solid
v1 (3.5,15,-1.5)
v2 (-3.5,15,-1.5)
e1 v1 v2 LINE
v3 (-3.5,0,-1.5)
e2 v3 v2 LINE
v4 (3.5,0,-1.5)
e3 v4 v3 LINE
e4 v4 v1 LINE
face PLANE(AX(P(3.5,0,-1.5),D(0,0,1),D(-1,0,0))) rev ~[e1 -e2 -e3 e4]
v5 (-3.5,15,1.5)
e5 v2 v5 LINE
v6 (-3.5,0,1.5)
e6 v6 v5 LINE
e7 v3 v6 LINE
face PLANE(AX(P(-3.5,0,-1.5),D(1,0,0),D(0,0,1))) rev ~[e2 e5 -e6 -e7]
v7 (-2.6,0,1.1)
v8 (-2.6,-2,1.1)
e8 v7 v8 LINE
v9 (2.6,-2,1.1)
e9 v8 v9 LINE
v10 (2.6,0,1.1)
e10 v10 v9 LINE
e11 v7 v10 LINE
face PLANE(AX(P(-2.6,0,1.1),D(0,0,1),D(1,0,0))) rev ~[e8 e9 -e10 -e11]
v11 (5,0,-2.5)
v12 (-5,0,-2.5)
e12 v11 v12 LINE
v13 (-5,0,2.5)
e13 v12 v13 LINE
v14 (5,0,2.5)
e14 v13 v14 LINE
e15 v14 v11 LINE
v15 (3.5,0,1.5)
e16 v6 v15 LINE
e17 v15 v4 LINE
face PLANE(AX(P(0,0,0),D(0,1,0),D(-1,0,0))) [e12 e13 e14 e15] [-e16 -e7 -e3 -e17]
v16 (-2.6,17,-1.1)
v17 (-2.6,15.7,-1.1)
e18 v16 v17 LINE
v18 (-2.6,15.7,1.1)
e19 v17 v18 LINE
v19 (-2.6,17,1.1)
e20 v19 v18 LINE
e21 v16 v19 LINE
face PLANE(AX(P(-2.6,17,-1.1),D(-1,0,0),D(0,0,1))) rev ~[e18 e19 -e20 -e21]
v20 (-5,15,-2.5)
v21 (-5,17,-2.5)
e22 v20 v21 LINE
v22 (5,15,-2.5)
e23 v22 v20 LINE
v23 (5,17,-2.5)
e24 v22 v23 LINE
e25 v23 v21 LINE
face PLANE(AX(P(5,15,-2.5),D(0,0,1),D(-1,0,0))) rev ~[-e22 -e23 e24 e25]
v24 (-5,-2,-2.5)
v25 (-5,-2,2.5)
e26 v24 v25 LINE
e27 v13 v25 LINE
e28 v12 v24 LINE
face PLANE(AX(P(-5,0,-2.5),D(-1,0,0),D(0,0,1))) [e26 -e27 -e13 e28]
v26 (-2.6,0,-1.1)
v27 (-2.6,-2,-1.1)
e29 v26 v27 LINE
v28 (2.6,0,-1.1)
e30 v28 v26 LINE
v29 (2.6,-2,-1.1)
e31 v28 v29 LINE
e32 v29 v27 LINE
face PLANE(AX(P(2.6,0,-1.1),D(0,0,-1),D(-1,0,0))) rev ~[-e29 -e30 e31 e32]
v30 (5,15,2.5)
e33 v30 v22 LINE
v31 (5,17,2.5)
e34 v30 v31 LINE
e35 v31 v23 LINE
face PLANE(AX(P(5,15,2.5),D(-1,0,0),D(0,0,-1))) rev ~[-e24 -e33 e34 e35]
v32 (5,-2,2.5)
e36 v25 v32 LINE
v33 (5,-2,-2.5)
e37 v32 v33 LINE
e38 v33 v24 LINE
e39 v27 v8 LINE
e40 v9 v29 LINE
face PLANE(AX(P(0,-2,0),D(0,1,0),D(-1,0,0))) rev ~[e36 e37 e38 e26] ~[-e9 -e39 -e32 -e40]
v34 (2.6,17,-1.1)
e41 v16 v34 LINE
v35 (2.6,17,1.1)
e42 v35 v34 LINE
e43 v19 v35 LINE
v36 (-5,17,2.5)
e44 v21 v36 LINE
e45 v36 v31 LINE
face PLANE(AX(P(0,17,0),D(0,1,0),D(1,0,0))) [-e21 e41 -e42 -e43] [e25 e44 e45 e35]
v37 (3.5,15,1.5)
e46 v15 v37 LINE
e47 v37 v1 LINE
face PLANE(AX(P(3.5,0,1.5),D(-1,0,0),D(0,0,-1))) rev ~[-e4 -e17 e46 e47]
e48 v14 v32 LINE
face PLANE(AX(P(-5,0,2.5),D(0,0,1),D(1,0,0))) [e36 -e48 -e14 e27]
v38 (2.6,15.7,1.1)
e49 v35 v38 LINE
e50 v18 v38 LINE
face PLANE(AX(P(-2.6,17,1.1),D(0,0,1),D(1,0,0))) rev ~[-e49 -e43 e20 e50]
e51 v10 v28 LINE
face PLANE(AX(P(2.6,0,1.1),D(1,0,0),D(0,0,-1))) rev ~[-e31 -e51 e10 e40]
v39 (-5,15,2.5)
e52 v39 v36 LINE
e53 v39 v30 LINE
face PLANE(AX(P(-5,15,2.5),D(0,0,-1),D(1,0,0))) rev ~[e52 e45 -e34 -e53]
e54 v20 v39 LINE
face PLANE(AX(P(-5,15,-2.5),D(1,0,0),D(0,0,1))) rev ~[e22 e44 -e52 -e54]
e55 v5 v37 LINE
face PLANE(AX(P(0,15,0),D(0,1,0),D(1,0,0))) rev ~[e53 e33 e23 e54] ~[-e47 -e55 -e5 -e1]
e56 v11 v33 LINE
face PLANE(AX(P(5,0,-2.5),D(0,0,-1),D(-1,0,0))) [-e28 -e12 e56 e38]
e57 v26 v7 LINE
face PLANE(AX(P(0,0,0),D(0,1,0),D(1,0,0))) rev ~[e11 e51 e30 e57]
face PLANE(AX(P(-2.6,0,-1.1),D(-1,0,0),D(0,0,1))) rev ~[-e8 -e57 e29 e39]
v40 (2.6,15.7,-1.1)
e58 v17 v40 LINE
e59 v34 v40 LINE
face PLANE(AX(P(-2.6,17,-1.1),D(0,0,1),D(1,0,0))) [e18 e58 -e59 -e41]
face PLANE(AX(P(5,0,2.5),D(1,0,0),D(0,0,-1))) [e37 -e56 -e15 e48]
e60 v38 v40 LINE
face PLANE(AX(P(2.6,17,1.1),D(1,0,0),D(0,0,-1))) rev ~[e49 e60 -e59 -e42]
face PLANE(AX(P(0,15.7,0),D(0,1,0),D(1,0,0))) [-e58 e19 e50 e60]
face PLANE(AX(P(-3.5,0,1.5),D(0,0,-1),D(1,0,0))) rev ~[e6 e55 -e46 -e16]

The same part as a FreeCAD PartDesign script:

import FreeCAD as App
import Part
import Sketcher
from FreeCAD import Vector

doc = App.newDocument("Part")
body = doc.addObject("PartDesign::Body", "Body")

sketch1 = body.newObject("Sketcher::SketchObject", "Sketch")
sketch1.AttachmentSupport = (doc.getObject("XZ_Plane"), [""])
sketch1.MapMode = "FlatFace"
sketch1.addGeometry(Part.LineSegment(Vector(-5, -2.5, 0), Vector(-5, 2.5, 0)), False)
sketch1.addGeometry(Part.LineSegment(Vector(-5, 2.5, 0), Vector(5, 2.5, 0)), False)
sketch1.addGeometry(Part.LineSegment(Vector(5, 2.5, 0), Vector(5, -2.5, 0)), False)
sketch1.addGeometry(Part.LineSegment(Vector(5, -2.5, 0), Vector(-5, -2.5, 0)), False)
sketch1.addGeometry(Part.LineSegment(Vector(2.6, 1.1, 0), Vector(-2.6, 1.1, 0)), False)
sketch1.addGeometry(Part.LineSegment(Vector(-2.6, 1.1, 0), Vector(-2.6, -1.1, 0)), False)
sketch1.addGeometry(Part.LineSegment(Vector(-2.6, -1.1, 0), Vector(2.6, -1.1, 0)), False)
sketch1.addGeometry(Part.LineSegment(Vector(2.6, -1.1, 0), Vector(2.6, 1.1, 0)), False)
sketch1.addConstraint(Sketcher.Constraint("Coincident", 0, 2, 1, 1))
sketch1.addConstraint(Sketcher.Constraint("Coincident", 1, 2, 2, 1))
sketch1.addConstraint(Sketcher.Constraint("Coincident", 2, 2, 3, 1))
sketch1.addConstraint(Sketcher.Constraint("Coincident", 3, 2, 0, 1))
sketch1.addConstraint(Sketcher.Constraint("Coincident", 4, 2, 5, 1))
sketch1.addConstraint(Sketcher.Constraint("Coincident", 5, 2, 6, 1))
sketch1.addConstraint(Sketcher.Constraint("Coincident", 6, 2, 7, 1))
sketch1.addConstraint(Sketcher.Constraint("Coincident", 7, 2, 4, 1))
sketch1.addConstraint(Sketcher.Constraint("Vertical", 0))
sketch1.addConstraint(Sketcher.Constraint("Horizontal", 1))
sketch1.addConstraint(Sketcher.Constraint("Vertical", 2))
sketch1.addConstraint(Sketcher.Constraint("Horizontal", 3))
sketch1.addConstraint(Sketcher.Constraint("Horizontal", 4))
sketch1.addConstraint(Sketcher.Constraint("Vertical", 5))
sketch1.addConstraint(Sketcher.Constraint("Horizontal", 6))
sketch1.addConstraint(Sketcher.Constraint("Vertical", 7))
sketch1.addConstraint(Sketcher.Constraint("Symmetric", 0, 2, 2, 2, -1, 1))
sketch1.addConstraint(Sketcher.Constraint("Symmetric", 4, 2, 6, 2, -1, 1))
sketch1.addConstraint(Sketcher.Constraint("DistanceX", 1, 1, 1, 2, 10.0))
sketch1.addConstraint(Sketcher.Constraint("DistanceY", 0, 1, 0, 2, 5.0))
sketch1.addConstraint(Sketcher.Constraint("DistanceX", 4, 2, 4, 1, 5.2))
sketch1.addConstraint(Sketcher.Constraint("DistanceY", 5, 2, 5, 1, 2.2))
pad1 = body.newObject("PartDesign::Pad", "Pad")
pad1.Profile = sketch1
pad1.Length = 2

sketch2 = body.newObject("Sketcher::SketchObject", "Sketch001")
sketch2.AttachmentSupport = (doc.getObject("XZ_Plane"), [""])
sketch2.MapMode = "FlatFace"
sketch2.addGeometry(Part.LineSegment(Vector(-3.5, -1.5, 0), Vector(-3.5, 1.5, 0)), False)
sketch2.addGeometry(Part.LineSegment(Vector(-3.5, 1.5, 0), Vector(3.5, 1.5, 0)), False)
sketch2.addGeometry(Part.LineSegment(Vector(3.5, 1.5, 0), Vector(3.5, -1.5, 0)), False)
sketch2.addGeometry(Part.LineSegment(Vector(3.5, -1.5, 0), Vector(-3.5, -1.5, 0)), False)
sketch2.addConstraint(Sketcher.Constraint("Coincident", 0, 2, 1, 1))
sketch2.addConstraint(Sketcher.Constraint("Coincident", 1, 2, 2, 1))
sketch2.addConstraint(Sketcher.Constraint("Coincident", 2, 2, 3, 1))
sketch2.addConstraint(Sketcher.Constraint("Coincident", 3, 2, 0, 1))
sketch2.addConstraint(Sketcher.Constraint("Vertical", 0))
sketch2.addConstraint(Sketcher.Constraint("Horizontal", 1))
sketch2.addConstraint(Sketcher.Constraint("Vertical", 2))
sketch2.addConstraint(Sketcher.Constraint("Horizontal", 3))
sketch2.addConstraint(Sketcher.Constraint("Symmetric", 0, 2, 2, 2, -1, 1))
sketch2.addConstraint(Sketcher.Constraint("DistanceX", 1, 1, 1, 2, 7.0))
sketch2.addConstraint(Sketcher.Constraint("DistanceY", 0, 1, 0, 2, 3.0))
pad2 = body.newObject("PartDesign::Pad", "Pad001")
pad2.Profile = sketch2
pad2.Length = 15
pad2.Reversed = True

sketch3 = body.newObject("Sketcher::SketchObject", "Sketch002")
sketch3.AttachmentSupport = (doc.getObject("XZ_Plane"), [""])
sketch3.MapMode = "FlatFace"
sketch3.AttachmentOffset = App.Placement(Vector(0, 0, -15), App.Rotation())
sketch3.addGeometry(Part.LineSegment(Vector(-5, 2, 0), Vector(5, 2, 0)), False)
sketch3.addGeometry(Part.LineSegment(Vector(5, 2, 0), Vector(5, -2, 0)), False)
sketch3.addGeometry(Part.LineSegment(Vector(5, -2, 0), Vector(-5, -2, 0)), False)
sketch3.addGeometry(Part.LineSegment(Vector(-5, -2, 0), Vector(-5, 2, 0)), False)
sketch3.addConstraint(Sketcher.Constraint("Coincident", 0, 2, 1, 1))
sketch3.addConstraint(Sketcher.Constraint("Coincident", 1, 2, 2, 1))
sketch3.addConstraint(Sketcher.Constraint("Coincident", 2, 2, 3, 1))
sketch3.addConstraint(Sketcher.Constraint("Coincident", 3, 2, 0, 1))
sketch3.addConstraint(Sketcher.Constraint("Horizontal", 0))
sketch3.addConstraint(Sketcher.Constraint("Vertical", 1))
sketch3.addConstraint(Sketcher.Constraint("Horizontal", 2))
sketch3.addConstraint(Sketcher.Constraint("Vertical", 3))
sketch3.addConstraint(Sketcher.Constraint("Symmetric", 0, 2, 2, 2, -1, 1))
sketch3.addConstraint(Sketcher.Constraint("DistanceX", 0, 1, 0, 2, 10.0))
sketch3.addConstraint(Sketcher.Constraint("DistanceY", 1, 2, 1, 1, 5.0))
pad3 = body.newObject("PartDesign::Pad", "Pad002")
pad3.Profile = sketch3
pad3.Length = 2
pad3.Reversed = True

sketch4 = body.newObject("Sketcher::SketchObject", "Sketch003")
sketch4.AttachmentSupport = (doc.getObject("XZ_Plane"), [""])
sketch4.MapMode = "FlatFace"
sketch4.AttachmentOffset = App.Placement(Vector(0, 0, -17), App.Rotation())
sketch4.addGeometry(Part.LineSegment(Vector(2.6, -1.1, 0), Vector(-2.6, -1.1, 0)), False)
sketch4.addGeometry(Part.LineSegment(Vector(-2.6, -1.1, 0), Vector(-2.6, 1.1, 0)), False)
sketch4.addGeometry(Part.LineSegment(Vector(-2.6, 1.1, 0), Vector(2.6, 1.1, 0)), False)
sketch4.addGeometry(Part.LineSegment(Vector(2.6, 1.1, 0), Vector(2.6, -1.1, 0)), False)
sketch4.addConstraint(Sketcher.Constraint("Coincident", 0, 2, 1, 1))
sketch4.addConstraint(Sketcher.Constraint("Coincident", 1, 2, 2, 1))
sketch4.addConstraint(Sketcher.Constraint("Coincident", 2, 2, 3, 1))
sketch4.addConstraint(Sketcher.Constraint("Coincident", 3, 2, 0, 1))
sketch4.addConstraint(Sketcher.Constraint("Horizontal", 0))
sketch4.addConstraint(Sketcher.Constraint("Vertical", 1))
sketch4.addConstraint(Sketcher.Constraint("Horizontal", 2))
sketch4.addConstraint(Sketcher.Constraint("Vertical", 3))
sketch4.addConstraint(Sketcher.Constraint("Symmetric", 0, 2, 2, 2, -1, 1))
sketch4.addConstraint(Sketcher.Constraint("DistanceX", 0, 2, 0, 1, 5.2))
sketch4.addConstraint(Sketcher.Constraint("DistanceY", 1, 1, 1, 2, 2.2))
pocket1 = body.newObject("PartDesign::Pocket", "Pocket")
pocket1.Profile = sketch4
pocket1.Length = 1.3
pocket1.Reversed = True

doc.recompute()
